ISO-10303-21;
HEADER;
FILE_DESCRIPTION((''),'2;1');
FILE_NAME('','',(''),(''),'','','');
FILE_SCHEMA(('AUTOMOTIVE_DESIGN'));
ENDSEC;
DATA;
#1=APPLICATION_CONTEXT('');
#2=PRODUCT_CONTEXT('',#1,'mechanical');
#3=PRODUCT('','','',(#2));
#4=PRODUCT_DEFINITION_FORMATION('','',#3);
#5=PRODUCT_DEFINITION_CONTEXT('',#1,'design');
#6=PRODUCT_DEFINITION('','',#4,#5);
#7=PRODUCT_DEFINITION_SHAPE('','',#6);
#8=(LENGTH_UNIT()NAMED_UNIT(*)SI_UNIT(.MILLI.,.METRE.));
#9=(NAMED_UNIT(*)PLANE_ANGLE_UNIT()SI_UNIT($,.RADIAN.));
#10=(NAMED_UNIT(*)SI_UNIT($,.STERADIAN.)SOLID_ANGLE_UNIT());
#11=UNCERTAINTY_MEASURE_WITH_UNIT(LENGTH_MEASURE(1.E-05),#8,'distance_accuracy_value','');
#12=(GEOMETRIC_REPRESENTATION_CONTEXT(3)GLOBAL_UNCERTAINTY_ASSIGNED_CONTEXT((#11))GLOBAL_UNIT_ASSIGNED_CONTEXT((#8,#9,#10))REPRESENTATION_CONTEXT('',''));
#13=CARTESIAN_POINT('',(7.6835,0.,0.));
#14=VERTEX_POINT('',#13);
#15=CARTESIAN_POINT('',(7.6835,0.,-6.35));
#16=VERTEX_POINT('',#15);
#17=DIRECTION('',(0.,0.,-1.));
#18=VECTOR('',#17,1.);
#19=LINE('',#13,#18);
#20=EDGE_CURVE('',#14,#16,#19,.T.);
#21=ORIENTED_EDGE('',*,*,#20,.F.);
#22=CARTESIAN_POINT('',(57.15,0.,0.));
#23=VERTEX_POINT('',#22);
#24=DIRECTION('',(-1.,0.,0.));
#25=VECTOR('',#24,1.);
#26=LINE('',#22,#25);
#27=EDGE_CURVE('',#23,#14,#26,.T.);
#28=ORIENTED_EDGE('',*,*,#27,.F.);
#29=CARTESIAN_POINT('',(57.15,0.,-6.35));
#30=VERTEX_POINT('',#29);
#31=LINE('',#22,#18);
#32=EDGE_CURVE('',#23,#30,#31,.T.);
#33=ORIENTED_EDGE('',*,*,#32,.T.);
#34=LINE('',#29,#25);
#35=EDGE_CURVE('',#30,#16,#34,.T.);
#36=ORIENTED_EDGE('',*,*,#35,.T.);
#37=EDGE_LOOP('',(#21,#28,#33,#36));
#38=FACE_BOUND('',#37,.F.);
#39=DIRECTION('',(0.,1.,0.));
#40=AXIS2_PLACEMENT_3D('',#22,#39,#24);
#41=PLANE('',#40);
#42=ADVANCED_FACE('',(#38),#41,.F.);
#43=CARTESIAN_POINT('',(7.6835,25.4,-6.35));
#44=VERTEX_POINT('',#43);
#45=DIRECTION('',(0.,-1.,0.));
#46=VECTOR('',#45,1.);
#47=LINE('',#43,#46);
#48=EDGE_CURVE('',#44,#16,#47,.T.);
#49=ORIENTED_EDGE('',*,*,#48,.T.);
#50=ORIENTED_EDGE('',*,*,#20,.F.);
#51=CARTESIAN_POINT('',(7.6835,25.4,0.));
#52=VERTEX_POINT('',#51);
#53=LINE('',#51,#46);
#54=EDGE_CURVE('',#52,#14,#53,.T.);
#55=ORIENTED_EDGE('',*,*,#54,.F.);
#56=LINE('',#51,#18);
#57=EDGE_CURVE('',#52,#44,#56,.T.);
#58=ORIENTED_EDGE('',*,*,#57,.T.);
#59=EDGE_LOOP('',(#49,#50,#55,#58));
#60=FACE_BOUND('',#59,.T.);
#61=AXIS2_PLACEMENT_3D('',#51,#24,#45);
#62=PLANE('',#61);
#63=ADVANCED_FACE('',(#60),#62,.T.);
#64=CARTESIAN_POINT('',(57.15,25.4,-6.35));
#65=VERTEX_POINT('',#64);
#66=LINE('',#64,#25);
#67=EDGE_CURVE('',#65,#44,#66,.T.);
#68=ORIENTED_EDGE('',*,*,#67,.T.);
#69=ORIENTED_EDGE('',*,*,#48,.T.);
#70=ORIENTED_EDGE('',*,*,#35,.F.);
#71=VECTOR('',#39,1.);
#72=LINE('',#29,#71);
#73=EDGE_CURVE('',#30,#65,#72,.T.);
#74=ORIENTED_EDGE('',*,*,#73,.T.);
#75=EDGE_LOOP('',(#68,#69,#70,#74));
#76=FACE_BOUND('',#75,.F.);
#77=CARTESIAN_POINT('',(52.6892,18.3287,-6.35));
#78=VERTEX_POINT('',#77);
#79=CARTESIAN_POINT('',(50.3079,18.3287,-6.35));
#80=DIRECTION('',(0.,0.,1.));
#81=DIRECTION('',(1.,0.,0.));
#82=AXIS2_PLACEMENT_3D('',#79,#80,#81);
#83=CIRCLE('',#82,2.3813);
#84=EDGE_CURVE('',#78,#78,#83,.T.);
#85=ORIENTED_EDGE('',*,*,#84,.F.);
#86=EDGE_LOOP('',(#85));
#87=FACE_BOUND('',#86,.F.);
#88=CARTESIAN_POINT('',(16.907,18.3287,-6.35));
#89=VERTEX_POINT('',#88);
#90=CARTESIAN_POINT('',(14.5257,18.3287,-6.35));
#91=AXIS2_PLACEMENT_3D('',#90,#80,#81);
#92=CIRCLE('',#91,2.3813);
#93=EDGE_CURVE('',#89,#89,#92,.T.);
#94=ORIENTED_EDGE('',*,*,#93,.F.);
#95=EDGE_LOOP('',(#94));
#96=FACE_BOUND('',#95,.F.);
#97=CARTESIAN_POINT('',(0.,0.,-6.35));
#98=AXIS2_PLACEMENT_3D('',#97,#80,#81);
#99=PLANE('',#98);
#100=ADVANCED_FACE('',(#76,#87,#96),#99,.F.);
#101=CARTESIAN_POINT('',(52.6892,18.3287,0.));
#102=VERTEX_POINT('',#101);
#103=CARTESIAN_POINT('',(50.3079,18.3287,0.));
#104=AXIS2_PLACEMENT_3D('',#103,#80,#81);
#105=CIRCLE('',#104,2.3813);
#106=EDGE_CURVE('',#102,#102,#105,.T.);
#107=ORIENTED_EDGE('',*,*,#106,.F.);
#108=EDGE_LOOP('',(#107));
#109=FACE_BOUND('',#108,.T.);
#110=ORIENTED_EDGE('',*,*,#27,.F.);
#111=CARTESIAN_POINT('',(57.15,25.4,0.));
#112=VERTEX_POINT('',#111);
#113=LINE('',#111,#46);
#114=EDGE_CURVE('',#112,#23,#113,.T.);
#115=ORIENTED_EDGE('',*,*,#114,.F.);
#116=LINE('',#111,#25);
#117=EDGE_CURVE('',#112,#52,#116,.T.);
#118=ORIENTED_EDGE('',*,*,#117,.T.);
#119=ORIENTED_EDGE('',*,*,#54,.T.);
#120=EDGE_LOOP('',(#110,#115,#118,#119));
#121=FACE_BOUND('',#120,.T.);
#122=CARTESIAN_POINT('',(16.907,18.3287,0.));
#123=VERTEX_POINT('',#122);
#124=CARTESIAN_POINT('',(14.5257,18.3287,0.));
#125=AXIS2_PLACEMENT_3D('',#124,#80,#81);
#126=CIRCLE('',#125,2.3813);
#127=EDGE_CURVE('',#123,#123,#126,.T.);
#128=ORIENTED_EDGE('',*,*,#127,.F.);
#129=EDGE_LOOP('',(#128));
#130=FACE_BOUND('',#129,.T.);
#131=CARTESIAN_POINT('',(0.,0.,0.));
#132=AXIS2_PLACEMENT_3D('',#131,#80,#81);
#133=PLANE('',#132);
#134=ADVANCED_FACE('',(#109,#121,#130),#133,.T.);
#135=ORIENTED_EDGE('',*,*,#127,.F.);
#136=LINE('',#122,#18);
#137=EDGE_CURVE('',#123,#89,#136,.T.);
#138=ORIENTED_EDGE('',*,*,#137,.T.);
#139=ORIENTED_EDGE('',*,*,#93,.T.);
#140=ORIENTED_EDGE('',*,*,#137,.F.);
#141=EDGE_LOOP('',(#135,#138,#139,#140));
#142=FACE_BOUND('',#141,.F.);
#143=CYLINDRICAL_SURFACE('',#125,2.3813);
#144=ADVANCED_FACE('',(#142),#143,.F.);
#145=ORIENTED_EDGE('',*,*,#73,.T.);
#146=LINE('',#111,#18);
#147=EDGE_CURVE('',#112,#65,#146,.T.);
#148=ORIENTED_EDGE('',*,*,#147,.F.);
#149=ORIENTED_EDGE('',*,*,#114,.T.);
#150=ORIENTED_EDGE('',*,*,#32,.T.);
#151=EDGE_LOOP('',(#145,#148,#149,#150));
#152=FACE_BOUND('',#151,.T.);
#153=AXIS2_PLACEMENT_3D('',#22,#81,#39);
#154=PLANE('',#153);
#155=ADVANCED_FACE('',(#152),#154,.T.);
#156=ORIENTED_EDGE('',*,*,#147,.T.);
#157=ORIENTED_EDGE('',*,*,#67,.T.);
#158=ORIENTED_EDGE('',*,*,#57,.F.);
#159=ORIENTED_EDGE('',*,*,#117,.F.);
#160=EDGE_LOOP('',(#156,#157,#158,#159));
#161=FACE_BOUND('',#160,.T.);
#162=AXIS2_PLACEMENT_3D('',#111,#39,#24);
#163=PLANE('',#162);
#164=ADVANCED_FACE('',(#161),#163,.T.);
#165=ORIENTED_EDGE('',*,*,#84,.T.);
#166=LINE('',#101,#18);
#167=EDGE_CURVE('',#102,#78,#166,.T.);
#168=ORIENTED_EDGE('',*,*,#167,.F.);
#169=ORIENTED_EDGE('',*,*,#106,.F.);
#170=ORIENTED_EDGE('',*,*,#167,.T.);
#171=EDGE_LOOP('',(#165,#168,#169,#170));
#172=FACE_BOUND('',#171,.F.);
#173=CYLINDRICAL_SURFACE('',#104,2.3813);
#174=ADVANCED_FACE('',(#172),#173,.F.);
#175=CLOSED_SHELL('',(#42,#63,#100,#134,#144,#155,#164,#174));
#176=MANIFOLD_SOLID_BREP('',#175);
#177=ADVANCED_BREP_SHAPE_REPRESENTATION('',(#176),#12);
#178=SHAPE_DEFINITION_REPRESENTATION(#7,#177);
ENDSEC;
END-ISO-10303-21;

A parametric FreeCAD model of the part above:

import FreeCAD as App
import Part
import Sketcher
from FreeCAD import Vector
Q = App.Units.Quantity


def add_polygon(sketch, points):
    """Adds a closed chain of lines whose ends are joined by coincident constraints."""
    first, n = sketch.GeometryCount, len(points)
    for a, b in zip(points, points[1:] + points[:1]):
        sketch.addGeometry(Part.LineSegment(App.Vector(*a, 0), App.Vector(*b, 0)), False)
    for i in range(n):
        sketch.addConstraint(Sketcher.Constraint("Coincident", first + i, 2, first + (i + 1) % n, 1))

doc = App.newDocument("Part")
body = doc.addObject("PartDesign::Body", "Body")

# Sketch on XY plane
sketch1 = body.newObject("Sketcher::SketchObject", "Sketch")
sketch1.AttachmentSupport = (doc.getObject("XY_Plane"), [""])
sketch1.MapMode = "FlatFace"
add_polygon(sketch1, [(7.6835, 0), (57.15, 0), (57.15, 25.4), (7.6835, 25.4)])  # lines 0-3
sketch1.addGeometry(Part.Circle(Vector(14.5257, 18.3287, 0), Vector(0, 0, 1), 2.3813), False)  # 4
sketch1.addGeometry(Part.Circle(Vector(50.3079, 18.3287, 0), Vector(0, 0, 1), 2.3813), False)  # 5
sketch1.addConstraint([
    Sketcher.Constraint("Horizontal", 0),
    Sketcher.Constraint("Vertical", 1),
    Sketcher.Constraint("Horizontal", 2),
    Sketcher.Constraint("Vertical", 3),
    Sketcher.Constraint("Equal", 4, 5),
    Sketcher.Constraint("PointOnObject", 0, 2, -1),
    Sketcher.Constraint("Horizontal", 4, 3, 5, 3),
    Sketcher.Constraint("DistanceY", 1, 1, 1, 2, Q("1 in")),
    Sketcher.Constraint("Diameter", 4, Q("0.1875 in")),
    Sketcher.Constraint("DistanceX", -1, 1, 0, 2, Q("2.25 in")),
    Sketcher.Constraint("DistanceX", 0, 1, 0, 2, Q("1.9475 in")),
    Sketcher.Constraint("DistanceY", -1, 1, 4, 3, Q("0.7216 in")),
    Sketcher.Constraint("DistanceX", -1, 1, 4, 3, 14.5257),
    Sketcher.Constraint("DistanceX", -1, 1, 5, 3, 50.308),
])
pad1 = body.newObject("PartDesign::Pad", "Pad")
pad1.Profile = sketch1
pad1.Length = Q("0.25 in")
pad1.Reversed = True

doc.recompute()
